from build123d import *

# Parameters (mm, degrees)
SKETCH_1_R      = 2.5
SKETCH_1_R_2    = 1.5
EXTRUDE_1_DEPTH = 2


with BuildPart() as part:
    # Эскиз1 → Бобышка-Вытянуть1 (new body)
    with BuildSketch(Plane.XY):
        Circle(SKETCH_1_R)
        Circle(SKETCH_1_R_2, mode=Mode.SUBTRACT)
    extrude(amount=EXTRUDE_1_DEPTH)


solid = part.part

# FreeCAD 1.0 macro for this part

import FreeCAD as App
import Part
import Sketcher

V = App.Vector
Q = App.Units.Quantity

doc = App.newDocument("Part")
body = doc.addObject("PartDesign::Body", "Body")

sketch1 = doc.addObject("Sketcher::SketchObject", "Sketch")
body.addObject(sketch1)
sketch1.AttachmentSupport = (doc.XY_Plane, [""])
sketch1.MapMode = "FlatFace"
sketch1.addGeometry(Part.Circle(V(0, 0, 0), V(0, 0, 1), 2.5), False)
sketch1.addGeometry(Part.Circle(V(0, 0, 0), V(0, 0, 1), 1.5), False)
sketch1.addConstraint(Sketcher.Constraint("Coincident", 0, 3, -1, 1))
sketch1.addConstraint(Sketcher.Constraint("Coincident", 1, 3, -1, 1))
sketch1.addConstraint(Sketcher.Constraint("Diameter", 0, Q("5 mm")))
sketch1.addConstraint(Sketcher.Constraint("Diameter", 1, Q("3 mm")))
pad1 = doc.addObject("PartDesign::Pad", "Pad")
body.addObject(pad1)
pad1.Profile = sketch1
pad1.Length = 2

doc.recompute()
